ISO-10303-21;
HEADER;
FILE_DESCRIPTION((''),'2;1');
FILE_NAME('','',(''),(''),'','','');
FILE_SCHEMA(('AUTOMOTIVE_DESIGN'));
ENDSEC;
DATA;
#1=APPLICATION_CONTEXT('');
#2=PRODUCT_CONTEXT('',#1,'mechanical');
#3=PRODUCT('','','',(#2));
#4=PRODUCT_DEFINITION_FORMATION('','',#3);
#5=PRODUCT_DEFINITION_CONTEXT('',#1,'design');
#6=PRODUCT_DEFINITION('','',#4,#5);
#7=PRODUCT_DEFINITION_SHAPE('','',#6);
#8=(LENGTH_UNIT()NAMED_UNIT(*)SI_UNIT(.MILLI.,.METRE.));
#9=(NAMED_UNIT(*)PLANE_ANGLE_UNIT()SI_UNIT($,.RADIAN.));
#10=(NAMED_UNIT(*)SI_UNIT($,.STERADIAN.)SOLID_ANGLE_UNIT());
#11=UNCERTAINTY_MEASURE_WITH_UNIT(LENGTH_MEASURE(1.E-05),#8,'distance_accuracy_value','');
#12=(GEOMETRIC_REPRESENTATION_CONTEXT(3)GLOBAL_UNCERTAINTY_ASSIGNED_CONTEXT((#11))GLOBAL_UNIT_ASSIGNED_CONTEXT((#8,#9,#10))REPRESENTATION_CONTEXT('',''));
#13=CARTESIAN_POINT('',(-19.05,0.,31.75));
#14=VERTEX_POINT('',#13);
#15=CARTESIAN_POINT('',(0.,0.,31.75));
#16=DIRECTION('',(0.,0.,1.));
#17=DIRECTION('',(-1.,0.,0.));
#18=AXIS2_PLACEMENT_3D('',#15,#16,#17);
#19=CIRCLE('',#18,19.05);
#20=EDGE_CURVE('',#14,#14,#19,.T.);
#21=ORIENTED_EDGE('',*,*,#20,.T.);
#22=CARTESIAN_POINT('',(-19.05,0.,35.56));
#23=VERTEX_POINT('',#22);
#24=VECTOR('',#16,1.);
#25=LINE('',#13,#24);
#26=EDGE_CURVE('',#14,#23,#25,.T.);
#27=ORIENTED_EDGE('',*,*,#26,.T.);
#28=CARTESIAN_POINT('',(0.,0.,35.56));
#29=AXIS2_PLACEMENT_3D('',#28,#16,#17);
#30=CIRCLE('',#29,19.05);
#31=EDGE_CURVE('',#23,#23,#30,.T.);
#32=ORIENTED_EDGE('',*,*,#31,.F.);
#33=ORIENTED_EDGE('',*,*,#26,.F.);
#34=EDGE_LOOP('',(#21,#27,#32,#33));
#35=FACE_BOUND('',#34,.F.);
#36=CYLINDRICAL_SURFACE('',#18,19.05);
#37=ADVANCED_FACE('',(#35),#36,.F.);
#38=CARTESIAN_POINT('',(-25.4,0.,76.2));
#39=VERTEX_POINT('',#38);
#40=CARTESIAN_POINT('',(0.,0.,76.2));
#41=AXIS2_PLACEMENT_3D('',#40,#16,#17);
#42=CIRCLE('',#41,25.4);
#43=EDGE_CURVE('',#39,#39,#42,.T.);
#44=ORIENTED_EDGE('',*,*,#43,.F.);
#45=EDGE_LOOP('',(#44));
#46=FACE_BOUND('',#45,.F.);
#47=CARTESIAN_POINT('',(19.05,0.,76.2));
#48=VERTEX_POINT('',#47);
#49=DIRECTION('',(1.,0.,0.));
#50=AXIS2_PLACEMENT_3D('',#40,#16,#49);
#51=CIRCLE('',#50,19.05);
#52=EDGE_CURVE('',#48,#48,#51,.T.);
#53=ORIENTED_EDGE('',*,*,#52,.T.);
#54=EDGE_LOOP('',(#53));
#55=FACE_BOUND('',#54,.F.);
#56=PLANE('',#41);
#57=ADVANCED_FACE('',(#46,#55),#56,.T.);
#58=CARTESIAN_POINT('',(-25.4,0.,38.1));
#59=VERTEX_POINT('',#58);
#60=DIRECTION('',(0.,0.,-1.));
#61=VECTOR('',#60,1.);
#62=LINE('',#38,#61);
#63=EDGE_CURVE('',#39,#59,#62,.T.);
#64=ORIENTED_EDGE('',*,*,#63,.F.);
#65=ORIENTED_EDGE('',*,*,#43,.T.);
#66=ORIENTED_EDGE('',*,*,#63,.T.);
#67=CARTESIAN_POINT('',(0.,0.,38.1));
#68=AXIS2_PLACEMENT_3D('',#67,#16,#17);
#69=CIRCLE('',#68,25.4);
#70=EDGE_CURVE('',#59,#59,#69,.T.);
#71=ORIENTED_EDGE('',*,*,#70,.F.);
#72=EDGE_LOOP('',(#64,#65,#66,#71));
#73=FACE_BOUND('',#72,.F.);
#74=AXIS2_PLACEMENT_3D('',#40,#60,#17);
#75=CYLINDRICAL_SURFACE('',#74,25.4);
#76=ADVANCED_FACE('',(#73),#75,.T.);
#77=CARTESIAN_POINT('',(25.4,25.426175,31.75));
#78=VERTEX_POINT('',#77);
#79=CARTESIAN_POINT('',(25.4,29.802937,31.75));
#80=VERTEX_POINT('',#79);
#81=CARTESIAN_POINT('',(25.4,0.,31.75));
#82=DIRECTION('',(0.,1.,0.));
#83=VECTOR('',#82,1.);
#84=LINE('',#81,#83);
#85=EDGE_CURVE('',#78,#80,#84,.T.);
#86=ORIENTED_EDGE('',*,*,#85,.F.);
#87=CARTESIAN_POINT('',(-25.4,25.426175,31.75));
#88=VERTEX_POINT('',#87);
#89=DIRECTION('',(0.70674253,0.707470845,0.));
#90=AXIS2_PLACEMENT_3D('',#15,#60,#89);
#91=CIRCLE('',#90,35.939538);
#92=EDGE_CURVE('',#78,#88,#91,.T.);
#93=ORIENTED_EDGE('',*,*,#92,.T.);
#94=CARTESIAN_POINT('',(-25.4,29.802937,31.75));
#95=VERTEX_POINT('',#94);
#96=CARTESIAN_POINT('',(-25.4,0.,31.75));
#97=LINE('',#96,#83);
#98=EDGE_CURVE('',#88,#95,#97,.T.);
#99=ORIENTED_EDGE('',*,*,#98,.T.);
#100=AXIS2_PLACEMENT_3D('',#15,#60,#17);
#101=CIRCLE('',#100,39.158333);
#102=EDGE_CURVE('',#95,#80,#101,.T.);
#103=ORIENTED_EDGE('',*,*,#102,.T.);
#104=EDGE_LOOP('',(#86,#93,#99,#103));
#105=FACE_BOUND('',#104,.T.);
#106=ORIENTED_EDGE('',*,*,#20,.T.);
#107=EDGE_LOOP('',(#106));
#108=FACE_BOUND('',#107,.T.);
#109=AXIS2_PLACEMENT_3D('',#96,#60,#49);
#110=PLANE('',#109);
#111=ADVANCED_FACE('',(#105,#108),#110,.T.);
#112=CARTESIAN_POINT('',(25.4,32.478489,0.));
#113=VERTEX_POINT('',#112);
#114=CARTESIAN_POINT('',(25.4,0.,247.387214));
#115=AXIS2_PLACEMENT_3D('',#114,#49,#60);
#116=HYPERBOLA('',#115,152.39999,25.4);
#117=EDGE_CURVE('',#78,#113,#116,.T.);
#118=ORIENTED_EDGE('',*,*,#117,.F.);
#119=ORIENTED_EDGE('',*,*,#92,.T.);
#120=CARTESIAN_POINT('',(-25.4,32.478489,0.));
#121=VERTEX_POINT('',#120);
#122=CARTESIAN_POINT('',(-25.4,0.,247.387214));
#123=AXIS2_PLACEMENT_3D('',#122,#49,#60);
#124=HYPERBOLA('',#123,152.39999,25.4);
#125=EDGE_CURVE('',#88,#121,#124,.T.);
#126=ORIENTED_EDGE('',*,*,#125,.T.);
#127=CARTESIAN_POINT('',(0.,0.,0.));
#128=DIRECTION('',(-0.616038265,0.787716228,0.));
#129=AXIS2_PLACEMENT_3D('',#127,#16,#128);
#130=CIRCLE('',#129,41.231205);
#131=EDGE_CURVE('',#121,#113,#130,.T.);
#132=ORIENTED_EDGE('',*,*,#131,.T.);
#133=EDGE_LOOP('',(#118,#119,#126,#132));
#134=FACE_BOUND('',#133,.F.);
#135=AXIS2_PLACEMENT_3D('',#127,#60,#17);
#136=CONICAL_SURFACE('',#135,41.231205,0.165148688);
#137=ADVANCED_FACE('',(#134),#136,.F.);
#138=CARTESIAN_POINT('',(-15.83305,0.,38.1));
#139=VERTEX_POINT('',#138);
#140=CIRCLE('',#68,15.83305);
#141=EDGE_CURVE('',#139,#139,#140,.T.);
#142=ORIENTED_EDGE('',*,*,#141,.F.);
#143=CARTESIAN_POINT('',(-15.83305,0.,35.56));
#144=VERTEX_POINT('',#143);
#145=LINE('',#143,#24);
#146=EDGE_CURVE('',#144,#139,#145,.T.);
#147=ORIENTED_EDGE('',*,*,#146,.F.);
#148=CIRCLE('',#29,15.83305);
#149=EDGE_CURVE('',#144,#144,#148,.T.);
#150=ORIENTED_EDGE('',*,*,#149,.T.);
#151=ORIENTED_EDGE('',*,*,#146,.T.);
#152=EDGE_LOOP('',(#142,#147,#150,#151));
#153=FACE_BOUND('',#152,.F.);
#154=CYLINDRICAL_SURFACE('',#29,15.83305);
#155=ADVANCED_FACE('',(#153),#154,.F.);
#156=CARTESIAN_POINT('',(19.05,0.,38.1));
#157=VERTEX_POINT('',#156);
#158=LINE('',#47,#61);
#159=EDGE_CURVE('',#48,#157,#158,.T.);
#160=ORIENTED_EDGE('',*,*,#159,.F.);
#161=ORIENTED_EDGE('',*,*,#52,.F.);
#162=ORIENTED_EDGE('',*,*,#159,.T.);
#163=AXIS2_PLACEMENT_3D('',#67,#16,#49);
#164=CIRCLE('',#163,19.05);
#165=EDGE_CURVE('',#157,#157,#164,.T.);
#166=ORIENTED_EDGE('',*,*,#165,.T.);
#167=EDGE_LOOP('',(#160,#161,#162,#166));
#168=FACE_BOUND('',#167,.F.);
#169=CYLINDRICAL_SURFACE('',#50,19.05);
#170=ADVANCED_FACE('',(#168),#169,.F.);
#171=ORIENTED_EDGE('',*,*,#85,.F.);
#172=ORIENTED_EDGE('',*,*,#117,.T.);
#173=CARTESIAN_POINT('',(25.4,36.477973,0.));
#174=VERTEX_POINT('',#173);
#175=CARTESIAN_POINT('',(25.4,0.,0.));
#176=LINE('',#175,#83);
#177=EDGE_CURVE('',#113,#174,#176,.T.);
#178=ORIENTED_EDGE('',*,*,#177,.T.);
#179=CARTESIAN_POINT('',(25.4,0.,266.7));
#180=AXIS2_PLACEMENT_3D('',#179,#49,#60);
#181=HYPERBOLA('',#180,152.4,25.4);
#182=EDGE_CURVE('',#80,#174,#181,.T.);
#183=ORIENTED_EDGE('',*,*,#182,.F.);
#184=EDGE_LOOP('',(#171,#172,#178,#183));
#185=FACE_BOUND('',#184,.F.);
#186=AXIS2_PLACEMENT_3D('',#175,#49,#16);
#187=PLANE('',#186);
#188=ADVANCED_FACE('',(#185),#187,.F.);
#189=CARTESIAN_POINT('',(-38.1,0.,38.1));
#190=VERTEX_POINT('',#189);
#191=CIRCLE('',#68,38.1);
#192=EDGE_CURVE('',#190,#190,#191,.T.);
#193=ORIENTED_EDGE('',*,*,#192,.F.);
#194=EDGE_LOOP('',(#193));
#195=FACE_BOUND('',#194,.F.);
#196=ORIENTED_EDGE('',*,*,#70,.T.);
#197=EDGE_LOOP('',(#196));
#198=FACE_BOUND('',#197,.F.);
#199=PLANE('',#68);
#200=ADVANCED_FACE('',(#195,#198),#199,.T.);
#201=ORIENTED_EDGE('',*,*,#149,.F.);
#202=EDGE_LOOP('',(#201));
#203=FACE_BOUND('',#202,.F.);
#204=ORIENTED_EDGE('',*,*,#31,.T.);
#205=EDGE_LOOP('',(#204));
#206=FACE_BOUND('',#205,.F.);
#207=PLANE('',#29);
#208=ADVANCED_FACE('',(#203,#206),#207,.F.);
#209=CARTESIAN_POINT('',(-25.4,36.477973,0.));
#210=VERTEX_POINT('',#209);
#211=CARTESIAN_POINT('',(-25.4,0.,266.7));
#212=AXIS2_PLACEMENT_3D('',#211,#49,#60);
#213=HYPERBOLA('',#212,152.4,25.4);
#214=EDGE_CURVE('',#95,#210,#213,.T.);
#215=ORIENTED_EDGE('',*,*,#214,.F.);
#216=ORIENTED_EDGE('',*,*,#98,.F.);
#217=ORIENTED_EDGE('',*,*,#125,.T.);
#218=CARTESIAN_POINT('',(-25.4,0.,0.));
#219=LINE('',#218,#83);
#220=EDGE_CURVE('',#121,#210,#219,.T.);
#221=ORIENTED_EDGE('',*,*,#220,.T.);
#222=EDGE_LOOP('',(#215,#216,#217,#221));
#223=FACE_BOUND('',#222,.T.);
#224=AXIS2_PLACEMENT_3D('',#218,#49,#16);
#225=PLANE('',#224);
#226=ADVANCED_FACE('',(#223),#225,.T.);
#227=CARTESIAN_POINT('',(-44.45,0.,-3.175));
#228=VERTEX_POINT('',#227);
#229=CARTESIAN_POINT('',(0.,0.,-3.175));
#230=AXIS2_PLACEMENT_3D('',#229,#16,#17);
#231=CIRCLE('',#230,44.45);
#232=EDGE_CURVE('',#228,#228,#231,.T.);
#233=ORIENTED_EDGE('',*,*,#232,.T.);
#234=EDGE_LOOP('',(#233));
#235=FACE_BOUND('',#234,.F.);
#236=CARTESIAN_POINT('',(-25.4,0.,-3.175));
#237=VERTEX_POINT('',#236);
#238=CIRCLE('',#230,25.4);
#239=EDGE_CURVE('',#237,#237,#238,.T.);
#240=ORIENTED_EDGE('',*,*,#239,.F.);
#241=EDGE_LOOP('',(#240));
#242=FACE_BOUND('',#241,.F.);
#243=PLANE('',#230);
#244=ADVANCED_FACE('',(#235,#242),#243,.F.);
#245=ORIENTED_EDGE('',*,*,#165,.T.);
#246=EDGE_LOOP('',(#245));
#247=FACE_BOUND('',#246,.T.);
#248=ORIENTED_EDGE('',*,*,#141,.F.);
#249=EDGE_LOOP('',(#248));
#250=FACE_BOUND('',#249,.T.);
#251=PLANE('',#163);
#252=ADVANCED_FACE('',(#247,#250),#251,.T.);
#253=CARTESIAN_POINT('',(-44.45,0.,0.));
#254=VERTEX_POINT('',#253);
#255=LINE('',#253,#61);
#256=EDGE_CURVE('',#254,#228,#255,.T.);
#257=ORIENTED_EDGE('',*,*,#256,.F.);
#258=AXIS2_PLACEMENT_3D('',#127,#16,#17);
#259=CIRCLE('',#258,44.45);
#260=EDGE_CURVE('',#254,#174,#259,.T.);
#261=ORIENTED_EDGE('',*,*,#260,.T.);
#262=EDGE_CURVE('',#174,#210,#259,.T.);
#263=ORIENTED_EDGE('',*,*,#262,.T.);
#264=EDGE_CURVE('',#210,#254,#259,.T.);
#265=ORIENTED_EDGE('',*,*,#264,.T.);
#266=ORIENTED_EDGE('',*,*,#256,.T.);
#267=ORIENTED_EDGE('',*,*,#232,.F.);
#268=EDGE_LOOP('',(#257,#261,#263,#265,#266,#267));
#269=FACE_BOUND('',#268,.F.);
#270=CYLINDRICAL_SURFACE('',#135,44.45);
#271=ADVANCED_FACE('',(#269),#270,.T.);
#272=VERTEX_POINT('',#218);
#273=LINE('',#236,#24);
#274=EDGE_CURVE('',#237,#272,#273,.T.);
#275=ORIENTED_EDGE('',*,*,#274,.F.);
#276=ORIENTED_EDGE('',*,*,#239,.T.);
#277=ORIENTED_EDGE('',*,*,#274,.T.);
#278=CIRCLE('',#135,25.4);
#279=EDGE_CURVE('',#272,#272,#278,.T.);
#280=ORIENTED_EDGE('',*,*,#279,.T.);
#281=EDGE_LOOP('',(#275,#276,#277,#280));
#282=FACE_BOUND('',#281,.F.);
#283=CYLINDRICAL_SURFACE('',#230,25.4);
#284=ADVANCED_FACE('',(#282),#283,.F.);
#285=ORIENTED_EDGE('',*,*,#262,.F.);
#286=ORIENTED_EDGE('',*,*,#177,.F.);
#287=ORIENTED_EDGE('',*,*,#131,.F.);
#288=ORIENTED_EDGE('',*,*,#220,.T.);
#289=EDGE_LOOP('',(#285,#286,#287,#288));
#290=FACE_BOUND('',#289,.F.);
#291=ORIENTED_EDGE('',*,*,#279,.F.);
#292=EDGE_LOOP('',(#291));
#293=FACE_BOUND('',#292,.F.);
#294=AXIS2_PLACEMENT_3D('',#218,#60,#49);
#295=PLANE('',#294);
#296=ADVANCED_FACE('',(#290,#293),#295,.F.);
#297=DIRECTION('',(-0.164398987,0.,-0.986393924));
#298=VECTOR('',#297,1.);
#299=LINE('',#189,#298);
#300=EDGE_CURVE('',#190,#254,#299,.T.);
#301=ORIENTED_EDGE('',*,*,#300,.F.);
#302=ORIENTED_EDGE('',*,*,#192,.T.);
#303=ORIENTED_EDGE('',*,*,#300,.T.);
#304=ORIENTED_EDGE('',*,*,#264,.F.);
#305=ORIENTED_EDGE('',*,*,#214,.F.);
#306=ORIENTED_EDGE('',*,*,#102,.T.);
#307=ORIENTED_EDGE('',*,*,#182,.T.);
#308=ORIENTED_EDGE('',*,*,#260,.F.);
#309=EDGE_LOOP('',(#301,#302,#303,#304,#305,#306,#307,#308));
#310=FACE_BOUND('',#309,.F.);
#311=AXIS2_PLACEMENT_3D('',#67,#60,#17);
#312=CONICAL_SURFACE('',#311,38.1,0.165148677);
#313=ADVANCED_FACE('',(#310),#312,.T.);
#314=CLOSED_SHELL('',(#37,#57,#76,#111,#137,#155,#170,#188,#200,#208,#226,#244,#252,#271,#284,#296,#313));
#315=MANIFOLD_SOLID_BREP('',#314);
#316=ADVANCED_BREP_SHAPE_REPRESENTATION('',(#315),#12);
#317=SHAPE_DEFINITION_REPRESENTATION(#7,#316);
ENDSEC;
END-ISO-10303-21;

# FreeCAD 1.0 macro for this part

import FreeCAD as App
import Part
import Sketcher
Q = App.Units.Quantity


def add_polygon(sketch, points):
    """Adds a closed chain of lines whose ends are joined by coincident constraints."""
    first, n = sketch.GeometryCount, len(points)
    for a, b in zip(points, points[1:] + points[:1]):
        sketch.addGeometry(Part.LineSegment(App.Vector(*a, 0), App.Vector(*b, 0)), False)
    for i in range(n):
        sketch.addConstraint(Sketcher.Constraint("Coincident", first + i, 2, first + (i + 1) % n, 1))

doc = App.newDocument("Part")
params = doc.addObject("Spreadsheet::Sheet", "Params")
for row, (alias, value) in enumerate([
    ("sketch1_width", "0.5 in"),
    ("sketch1_height", "1.6 in"),
    ("sketch1_height2", "1.5 in"),
    ("sketch1_width2", "0.75 in"),
    ("sketch1_height3", "0.15 in"),
    ("revolution_angle", "360 deg"),
    ("sketch2_width", "2 in"),
    ("sketch2_height", "1.25 in"),
    ("sketch3_diameter", "1.5 in"),
    ("pocket2_length", "1.5 in"),
], start=1):
    params.set(f"A{row}", alias)
    params.set(f"B{row}", "=" + value)
    params.setAlias(f"B{row}", alias)

body = doc.addObject("PartDesign::Body", "Body")

# Sketch on XZ plane
sketch1 = body.newObject("Sketcher::SketchObject", "Sketch")
sketch1.AttachmentSupport = (doc.getObject("XZ_Plane"), [""])
sketch1.MapMode = "FlatFace"
add_polygon(sketch1, [(-38.1, 38.1), (-44.5, 0), (-44.5, -3.2), (-25.4, -3.2), (-25.4, 0), (-41.2, 0), (-35.9, 31.8), (-19.1, 31.8), (-19.1, 35.6), (-15.8, 35.6), (-15.8, 76.2), (-25.4, 76.2), (-25.4, 38.1)])  # lines 0-12
sketch1.addConstraint(Sketcher.Constraint("Vertical", 1))
sketch1.addConstraint(Sketcher.Constraint("Horizontal", 2))
sketch1.addConstraint(Sketcher.Constraint("Vertical", 3))
sketch1.addConstraint(Sketcher.Constraint("Horizontal", 4))
sketch1.addConstraint(Sketcher.Constraint("Horizontal", 6))
sketch1.addConstraint(Sketcher.Constraint("Vertical", 7))
sketch1.addConstraint(Sketcher.Constraint("Horizontal", 8))
sketch1.addConstraint(Sketcher.Constraint("Vertical", 9))
sketch1.addConstraint(Sketcher.Constraint("Horizontal", 10))
sketch1.addConstraint(Sketcher.Constraint("Vertical", 11))
sketch1.addConstraint(Sketcher.Constraint("Horizontal", 12))
sketch1.addConstraint(Sketcher.Constraint("PointOnObject", 0, 2, -1))
sketch1.addConstraint(Sketcher.Constraint("PointOnObject", 3, 2, -1))
sketch1.addConstraint(Sketcher.Constraint("Parallel", 0, 5))
sketch1.addConstraint(Sketcher.Constraint("Vertical", 3, 2, 10, 2))
sketch1.addConstraint(Sketcher.Constraint("DistanceX", 12, 2, 12, 1, Q("0.5 in")))
sketch1.addConstraint(Sketcher.Constraint("DistanceY", 9, 1, 9, 2, Q("1.6 in")))
sketch1.addConstraint(Sketcher.Constraint("DistanceY", 11, 2, 11, 1, Q("1.5 in")))
sketch1.addConstraint(Sketcher.Constraint("DistanceX", 2, 2, -1, 1, Q("1 in")))
sketch1.addConstraint(Sketcher.Constraint("DistanceY", -1, 1, 9, 2, Q("3 in")))
sketch1.addConstraint(Sketcher.Constraint("DistanceX", 0, 2, 6, 2, Q("1 in")))
sketch1.addConstraint(Sketcher.Constraint("DistanceX", 2, 1, 2, 2, Q("0.75 in")))
sketch1.addConstraint(Sketcher.Constraint("DistanceY", 7, 1, 7, 2, Q("0.15 in")))
sketch1.addConstraint(Sketcher.Constraint("DistanceY", 1, 2, 1, 1, Q("0.125 in")))
sketch1.addConstraint(Sketcher.Constraint("DistanceX", 8, 1, 8, 2, 3.21695))
sketch1.addConstraint(Sketcher.Constraint("DistanceX", 4, 2, 4, 1, 15.831205))
sketch1.setExpression("Constraints[28]", "Params.sketch1_width")
sketch1.setExpression("Constraints[29]", "Params.sketch1_height")
sketch1.setExpression("Constraints[30]", "Params.sketch1_height2")
sketch1.setExpression("Constraints[34]", "Params.sketch1_width2")
sketch1.setExpression("Constraints[35]", "Params.sketch1_height3")
revolution = body.newObject("PartDesign::Revolution", "Revolution")
revolution.Profile = sketch1
revolution.ReferenceAxis = (sketch1, ["V_Axis"])
revolution.setExpression("Angle", "Params.revolution_angle")

# Sketch on XZ plane
sketch2 = body.newObject("Sketcher::SketchObject", "Sketch001")
sketch2.AttachmentSupport = (doc.getObject("XZ_Plane"), [""])
sketch2.MapMode = "FlatFace"
add_polygon(sketch2, [(-25, 32), (-25, 0), (25, 0), (25, 32)])  # lines 0-3
sketch2.addConstraint(Sketcher.Constraint("Vertical", 0))
sketch2.addConstraint(Sketcher.Constraint("Horizontal", 1))
sketch2.addConstraint(Sketcher.Constraint("Vertical", 2))
sketch2.addConstraint(Sketcher.Constraint("Horizontal", 3))
sketch2.addConstraint(Sketcher.Constraint("Symmetric", 0, 2, 1, 2, -1, 1))
sketch2.addConstraint(Sketcher.Constraint("DistanceX", 1, 1, 1, 2, Q("2 in")))
sketch2.addConstraint(Sketcher.Constraint("DistanceY", 0, 2, 0, 1, Q("1.25 in")))
sketch2.setExpression("Constraints[9]", "Params.sketch2_width")
sketch2.setExpression("Constraints[10]", "Params.sketch2_height")
pocket1 = body.newObject("PartDesign::Pocket", "Pocket")
pocket1.Profile = sketch2
pocket1.Type = "ThroughAll"

# Sketch on XY plane
sketch3 = body.newObject("Sketcher::SketchObject", "Sketch002")
sketch3.AttachmentSupport = (doc.getObject("XY_Plane"), [""])
sketch3.MapMode = "FlatFace"
sketch3.AttachmentOffset = App.Placement(App.Vector(0, 0, 3 * 25.4), App.Rotation())
sketch3.addGeometry(Part.Circle(App.Vector(0, 0, 0), App.Vector(0, 0, 1), 19), False)
sketch3.addConstraint(Sketcher.Constraint("Coincident", 0, 3, -1, 1))
sketch3.addConstraint(Sketcher.Constraint("Diameter", 0, Q("1.5 in")))
sketch3.setExpression("Constraints[1]", "Params.sketch3_diameter")
pocket2 = body.newObject("PartDesign::Pocket", "Pocket001")
pocket2.Profile = sketch3
pocket2.setExpression("Length", "Params.pocket2_length")

doc.recompute()
